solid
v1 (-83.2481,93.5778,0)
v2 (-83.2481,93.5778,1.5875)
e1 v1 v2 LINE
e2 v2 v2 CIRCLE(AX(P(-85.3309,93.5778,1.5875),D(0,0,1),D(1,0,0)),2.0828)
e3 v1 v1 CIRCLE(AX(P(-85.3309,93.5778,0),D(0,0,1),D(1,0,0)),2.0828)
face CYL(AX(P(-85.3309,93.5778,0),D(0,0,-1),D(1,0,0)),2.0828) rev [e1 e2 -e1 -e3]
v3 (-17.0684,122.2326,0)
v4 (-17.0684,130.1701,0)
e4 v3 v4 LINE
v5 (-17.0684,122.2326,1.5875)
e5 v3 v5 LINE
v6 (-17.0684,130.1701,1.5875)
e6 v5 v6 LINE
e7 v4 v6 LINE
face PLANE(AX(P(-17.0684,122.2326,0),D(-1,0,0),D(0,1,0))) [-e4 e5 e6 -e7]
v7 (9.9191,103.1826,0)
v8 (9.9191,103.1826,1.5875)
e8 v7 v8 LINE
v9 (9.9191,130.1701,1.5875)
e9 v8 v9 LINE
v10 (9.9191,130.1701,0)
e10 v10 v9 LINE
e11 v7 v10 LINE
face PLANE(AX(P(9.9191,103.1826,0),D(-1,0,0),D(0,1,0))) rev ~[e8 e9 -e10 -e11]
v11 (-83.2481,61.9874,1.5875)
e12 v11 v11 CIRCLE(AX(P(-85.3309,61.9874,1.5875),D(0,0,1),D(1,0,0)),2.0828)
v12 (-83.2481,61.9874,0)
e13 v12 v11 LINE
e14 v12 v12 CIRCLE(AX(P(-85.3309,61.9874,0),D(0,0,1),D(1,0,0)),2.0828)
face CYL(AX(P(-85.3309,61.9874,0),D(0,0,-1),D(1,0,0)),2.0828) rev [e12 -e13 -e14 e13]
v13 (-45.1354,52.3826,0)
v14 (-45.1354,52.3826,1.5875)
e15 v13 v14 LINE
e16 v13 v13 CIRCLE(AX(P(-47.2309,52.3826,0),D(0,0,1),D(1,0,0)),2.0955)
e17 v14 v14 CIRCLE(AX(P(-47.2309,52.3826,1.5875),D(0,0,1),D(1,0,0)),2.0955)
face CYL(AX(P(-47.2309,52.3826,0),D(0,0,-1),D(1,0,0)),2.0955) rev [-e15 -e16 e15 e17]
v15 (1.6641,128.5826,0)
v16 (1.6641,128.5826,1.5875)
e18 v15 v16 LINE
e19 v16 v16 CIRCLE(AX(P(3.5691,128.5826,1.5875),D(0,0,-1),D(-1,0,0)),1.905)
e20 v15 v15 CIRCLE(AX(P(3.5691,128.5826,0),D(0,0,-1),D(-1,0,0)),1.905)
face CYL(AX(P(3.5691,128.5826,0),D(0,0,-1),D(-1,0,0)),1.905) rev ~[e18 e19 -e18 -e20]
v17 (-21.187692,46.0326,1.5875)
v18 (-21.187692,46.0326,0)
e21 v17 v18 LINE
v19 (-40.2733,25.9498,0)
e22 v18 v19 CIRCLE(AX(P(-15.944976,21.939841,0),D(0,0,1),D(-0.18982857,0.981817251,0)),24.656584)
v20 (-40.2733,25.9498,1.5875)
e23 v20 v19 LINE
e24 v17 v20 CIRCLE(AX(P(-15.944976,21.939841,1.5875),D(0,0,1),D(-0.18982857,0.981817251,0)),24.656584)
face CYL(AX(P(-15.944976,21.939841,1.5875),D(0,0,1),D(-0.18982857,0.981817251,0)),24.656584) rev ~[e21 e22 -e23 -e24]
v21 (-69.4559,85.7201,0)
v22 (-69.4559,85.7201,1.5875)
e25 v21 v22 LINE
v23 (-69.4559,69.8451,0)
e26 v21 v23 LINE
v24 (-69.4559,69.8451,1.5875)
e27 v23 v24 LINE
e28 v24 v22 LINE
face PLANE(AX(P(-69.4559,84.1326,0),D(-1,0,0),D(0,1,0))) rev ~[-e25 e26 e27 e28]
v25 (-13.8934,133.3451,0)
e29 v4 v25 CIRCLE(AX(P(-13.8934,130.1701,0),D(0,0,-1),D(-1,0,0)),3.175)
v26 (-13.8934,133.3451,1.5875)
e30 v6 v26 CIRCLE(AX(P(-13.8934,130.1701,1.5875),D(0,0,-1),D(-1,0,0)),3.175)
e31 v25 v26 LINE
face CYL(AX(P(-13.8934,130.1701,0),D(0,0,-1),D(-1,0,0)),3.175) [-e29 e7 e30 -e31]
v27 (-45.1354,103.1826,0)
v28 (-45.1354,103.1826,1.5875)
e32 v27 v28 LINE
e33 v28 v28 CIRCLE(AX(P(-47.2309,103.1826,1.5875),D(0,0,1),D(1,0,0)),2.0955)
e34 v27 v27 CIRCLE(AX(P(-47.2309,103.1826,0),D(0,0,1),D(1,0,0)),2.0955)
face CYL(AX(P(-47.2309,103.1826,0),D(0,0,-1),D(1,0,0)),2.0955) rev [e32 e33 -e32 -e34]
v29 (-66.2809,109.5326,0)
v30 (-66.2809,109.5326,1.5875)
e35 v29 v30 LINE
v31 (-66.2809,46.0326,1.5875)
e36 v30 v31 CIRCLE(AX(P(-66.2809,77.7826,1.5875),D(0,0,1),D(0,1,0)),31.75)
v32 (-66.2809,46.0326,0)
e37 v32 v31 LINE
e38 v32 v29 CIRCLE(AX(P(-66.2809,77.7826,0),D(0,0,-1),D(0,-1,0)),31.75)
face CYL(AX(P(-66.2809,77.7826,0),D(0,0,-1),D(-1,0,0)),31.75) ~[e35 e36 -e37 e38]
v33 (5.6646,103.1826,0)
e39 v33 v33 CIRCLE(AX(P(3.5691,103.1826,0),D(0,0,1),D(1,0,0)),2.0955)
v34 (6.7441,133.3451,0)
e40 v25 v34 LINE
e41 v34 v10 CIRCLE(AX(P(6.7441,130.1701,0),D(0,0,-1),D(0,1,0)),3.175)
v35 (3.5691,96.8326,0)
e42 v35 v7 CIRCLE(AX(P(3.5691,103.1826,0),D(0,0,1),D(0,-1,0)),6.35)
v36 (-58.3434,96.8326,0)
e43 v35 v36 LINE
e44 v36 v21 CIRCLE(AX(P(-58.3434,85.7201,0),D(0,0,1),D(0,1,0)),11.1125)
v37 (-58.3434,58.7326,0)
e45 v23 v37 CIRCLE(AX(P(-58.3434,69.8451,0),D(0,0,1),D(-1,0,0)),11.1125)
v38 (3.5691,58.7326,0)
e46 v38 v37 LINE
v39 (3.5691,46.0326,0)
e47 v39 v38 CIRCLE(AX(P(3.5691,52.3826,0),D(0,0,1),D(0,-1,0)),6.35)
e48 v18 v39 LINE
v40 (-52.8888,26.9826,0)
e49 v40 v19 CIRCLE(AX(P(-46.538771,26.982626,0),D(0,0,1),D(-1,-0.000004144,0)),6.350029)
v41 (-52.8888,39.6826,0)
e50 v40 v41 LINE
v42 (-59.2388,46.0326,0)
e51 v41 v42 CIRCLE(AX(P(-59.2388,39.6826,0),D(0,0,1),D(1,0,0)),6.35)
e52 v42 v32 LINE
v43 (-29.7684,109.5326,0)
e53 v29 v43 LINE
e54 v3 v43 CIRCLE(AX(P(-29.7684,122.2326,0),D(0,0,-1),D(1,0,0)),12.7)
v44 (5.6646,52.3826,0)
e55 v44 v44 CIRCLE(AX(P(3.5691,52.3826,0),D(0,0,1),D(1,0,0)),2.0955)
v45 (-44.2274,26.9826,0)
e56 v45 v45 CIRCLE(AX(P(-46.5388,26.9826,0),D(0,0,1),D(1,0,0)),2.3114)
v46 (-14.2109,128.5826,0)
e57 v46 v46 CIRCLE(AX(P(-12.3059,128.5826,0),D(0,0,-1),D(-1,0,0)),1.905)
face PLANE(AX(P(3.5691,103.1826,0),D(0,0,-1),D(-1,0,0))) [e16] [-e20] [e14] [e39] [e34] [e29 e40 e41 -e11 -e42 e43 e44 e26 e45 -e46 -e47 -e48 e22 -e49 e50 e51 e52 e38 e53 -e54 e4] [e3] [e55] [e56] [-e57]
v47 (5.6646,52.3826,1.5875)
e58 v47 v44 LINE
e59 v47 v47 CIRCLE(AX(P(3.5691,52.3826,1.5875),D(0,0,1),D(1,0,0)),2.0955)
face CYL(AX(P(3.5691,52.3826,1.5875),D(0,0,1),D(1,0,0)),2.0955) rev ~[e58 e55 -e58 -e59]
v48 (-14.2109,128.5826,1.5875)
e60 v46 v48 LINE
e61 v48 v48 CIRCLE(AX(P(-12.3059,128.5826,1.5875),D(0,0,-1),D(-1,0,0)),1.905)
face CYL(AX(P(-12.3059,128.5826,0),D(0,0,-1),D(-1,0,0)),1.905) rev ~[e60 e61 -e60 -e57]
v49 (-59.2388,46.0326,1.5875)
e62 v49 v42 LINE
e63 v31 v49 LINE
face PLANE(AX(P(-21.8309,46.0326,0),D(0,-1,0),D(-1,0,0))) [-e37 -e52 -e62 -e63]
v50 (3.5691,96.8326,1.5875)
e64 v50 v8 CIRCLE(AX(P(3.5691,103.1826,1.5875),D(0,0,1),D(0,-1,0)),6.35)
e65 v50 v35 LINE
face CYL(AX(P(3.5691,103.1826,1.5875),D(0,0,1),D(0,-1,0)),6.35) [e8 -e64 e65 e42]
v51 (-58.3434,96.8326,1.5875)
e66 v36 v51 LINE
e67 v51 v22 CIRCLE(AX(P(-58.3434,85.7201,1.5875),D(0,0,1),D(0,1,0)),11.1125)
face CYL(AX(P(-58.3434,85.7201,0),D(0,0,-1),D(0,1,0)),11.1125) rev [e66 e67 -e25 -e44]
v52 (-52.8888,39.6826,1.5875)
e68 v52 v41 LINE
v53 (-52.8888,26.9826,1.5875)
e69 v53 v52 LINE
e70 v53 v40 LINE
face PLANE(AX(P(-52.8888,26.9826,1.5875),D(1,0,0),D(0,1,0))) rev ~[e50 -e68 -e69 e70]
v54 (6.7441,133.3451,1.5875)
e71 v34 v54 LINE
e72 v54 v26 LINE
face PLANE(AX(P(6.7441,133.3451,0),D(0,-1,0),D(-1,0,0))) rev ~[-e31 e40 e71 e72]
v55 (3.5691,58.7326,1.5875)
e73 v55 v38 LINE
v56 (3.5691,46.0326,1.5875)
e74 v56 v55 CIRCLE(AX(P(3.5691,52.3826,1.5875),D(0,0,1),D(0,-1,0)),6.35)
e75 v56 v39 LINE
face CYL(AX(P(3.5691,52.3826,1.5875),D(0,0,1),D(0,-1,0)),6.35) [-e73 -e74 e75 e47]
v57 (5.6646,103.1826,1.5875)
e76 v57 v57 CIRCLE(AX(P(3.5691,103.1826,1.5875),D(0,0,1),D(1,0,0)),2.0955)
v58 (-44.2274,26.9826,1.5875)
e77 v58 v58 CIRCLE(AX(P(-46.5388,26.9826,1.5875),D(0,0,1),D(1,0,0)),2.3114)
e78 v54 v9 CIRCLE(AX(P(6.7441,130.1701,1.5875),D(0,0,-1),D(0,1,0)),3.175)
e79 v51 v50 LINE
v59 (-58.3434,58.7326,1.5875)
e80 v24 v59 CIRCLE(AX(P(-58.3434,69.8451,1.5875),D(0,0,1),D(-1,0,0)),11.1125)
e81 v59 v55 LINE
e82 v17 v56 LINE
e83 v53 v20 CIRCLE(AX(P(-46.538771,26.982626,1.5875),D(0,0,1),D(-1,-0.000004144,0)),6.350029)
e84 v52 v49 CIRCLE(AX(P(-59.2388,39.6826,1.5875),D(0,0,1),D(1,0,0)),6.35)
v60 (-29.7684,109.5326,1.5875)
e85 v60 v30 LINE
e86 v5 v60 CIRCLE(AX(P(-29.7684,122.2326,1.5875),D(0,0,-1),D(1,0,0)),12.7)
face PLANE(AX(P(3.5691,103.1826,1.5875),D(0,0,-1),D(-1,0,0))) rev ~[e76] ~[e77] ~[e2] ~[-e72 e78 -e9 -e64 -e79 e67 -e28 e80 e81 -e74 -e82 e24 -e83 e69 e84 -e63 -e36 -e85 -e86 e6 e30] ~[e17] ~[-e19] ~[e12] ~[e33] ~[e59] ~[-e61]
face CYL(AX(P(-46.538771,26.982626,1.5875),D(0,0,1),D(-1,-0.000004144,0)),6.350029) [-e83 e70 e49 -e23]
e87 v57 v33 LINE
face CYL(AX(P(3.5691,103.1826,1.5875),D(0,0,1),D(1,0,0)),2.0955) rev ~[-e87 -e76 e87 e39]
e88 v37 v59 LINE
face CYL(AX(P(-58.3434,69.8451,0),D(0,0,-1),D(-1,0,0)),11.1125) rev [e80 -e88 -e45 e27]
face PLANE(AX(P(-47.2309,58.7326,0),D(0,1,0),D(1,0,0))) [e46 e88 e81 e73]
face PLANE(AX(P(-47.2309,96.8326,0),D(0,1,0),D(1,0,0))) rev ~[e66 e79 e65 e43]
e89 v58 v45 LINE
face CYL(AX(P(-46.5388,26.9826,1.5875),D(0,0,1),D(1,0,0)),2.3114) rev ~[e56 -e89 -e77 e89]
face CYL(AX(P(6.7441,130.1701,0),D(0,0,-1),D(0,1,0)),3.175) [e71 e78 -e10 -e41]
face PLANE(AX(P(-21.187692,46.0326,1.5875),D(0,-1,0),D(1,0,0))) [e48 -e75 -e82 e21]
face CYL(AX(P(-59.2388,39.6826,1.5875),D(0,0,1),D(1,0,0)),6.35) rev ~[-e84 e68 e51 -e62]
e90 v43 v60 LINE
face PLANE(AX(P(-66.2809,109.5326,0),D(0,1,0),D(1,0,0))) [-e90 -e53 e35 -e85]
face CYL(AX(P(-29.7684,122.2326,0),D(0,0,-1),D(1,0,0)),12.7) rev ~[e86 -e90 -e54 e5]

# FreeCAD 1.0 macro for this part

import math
import FreeCAD as App
import Part
import Sketcher
from FreeCAD import Vector
Q = App.Units.Quantity

doc = App.newDocument("Part")
params = doc.addObject("Spreadsheet::Sheet", "Params")
for row, (alias, value) in enumerate([
    ("sketch1_radius", "0.25 in"),
    ("sketch1_radius2", "1.25 in"),
    ("sketch1_diameter", "0.164 in"),
    ("sketch1_diameter2", "0.165 in"),
    ("sketch1_radius3", "0.4375 in"),
    ("pad1_length", "0.0625 in"),
    ("sketch2_radius", "0.25 in"),
    ("sketch2_diameter", "0.182 in"),
    ("sketch2_diameter2", "0.165 in"),
    ("sketch2_height", "0.5 in"),
    ("sketch2_width", "1 in"),
    ("pad2_length", "0.0625 in"),
    ("sketch3_radius", "0.5 in"),
    ("sketch3_diameter", "0.15 in"),
    ("sketch3_radius2", "0.25 in"),
    ("sketch3_radius3", "0.125 in"),
    ("sketch3_width", "1.3125 in"),
    ("pad3_length", "0.0625 in"),
], start=1):
    params.set(f"A{row}", alias)
    params.set(f"B{row}", "=" + value)
    params.setAlias(f"B{row}", alias)

body = doc.addObject("PartDesign::Body", "Body")

sketch1 = body.newObject("Sketcher::SketchObject", "Sketch")
sketch1.AttachmentSupport = (doc.getObject("XY_Plane"), [""])
sketch1.MapMode = "FlatFace"
sketch1.addGeometry([
    Part.LineSegment(Vector(-21.8, 58.7, 0), Vector(-58.3, 58.7, 0)),
    Part.ArcOfCircle(Part.Circle(Vector(-58.3, 69.8, 0), Vector(0, 0, 1), 11.1), math.radians(180), math.radians(270)),
    Part.LineSegment(Vector(-69.5, 69.8, 0), Vector(-69.5, 85.7, 0)),
    Part.ArcOfCircle(Part.Circle(Vector(-58.3, 85.7, 0), Vector(0, 0, 1), 11.1), math.radians(90), math.radians(180)),
    Part.LineSegment(Vector(-58.3, 96.8, 0), Vector(-21.8, 96.8, 0)),
    Part.ArcOfCircle(Part.Circle(Vector(-21.8, 103.2, 0), Vector(0, 0, 1), 6.3), math.radians(-90), math.radians(90)),
    Part.LineSegment(Vector(-21.8, 109.5, 0), Vector(-66.3, 109.5, 0)),
    Part.ArcOfCircle(Part.Circle(Vector(-66.3, 77.8, 0), Vector(0, 0, 1), 31.8), math.radians(90), math.radians(270)),
    Part.LineSegment(Vector(-66.3, 46, 0), Vector(-21.8, 46, 0)),
    Part.ArcOfCircle(Part.Circle(Vector(-21.8, 52.4, 0), Vector(0, 0, 1), 6.3), math.radians(-90), math.radians(90)),
    Part.Circle(Vector(-85.3, 62, 0), Vector(0, 0, 1), 2.1),
    Part.Circle(Vector(-47.2, 52.4, 0), Vector(0, 0, 1), 2.1),
    Part.Circle(Vector(-85.3, 93.6, 0), Vector(0, 0, 1), 2.1),
    Part.Circle(Vector(-47.2, 103.2, 0), Vector(0, 0, 1), 2.1),
], False)
sketch1.addConstraint([
    Sketcher.Constraint("Tangent", 0, 2, 1, 2),
    Sketcher.Constraint("Tangent", 1, 1, 2, 1),
    Sketcher.Constraint("Tangent", 2, 2, 3, 2),
    Sketcher.Constraint("Tangent", 3, 1, 4, 1),
    Sketcher.Constraint("Tangent", 4, 2, 5, 1),
    Sketcher.Constraint("Tangent", 5, 2, 6, 1),
    Sketcher.Constraint("Tangent", 6, 2, 7, 1),
    Sketcher.Constraint("Tangent", 7, 2, 8, 1),
    Sketcher.Constraint("Tangent", 8, 2, 9, 1),
    Sketcher.Constraint("Tangent", 9, 2, 0, 1),
    Sketcher.Constraint("Horizontal", 0),
    Sketcher.Constraint("Vertical", 2),
    Sketcher.Constraint("Horizontal", 4),
    Sketcher.Constraint("Horizontal", 6),
    Sketcher.Constraint("Horizontal", 8),
    Sketcher.Constraint("Equal", 1, 3),
    Sketcher.Constraint("Equal", 5, 9),
    Sketcher.Constraint("Equal", 10, 12),
    Sketcher.Constraint("Equal", 11, 13),
    Sketcher.Constraint("Horizontal", 9, 3, 11, 3),
    Sketcher.Constraint("Horizontal", 5, 3, 13, 3),
    Sketcher.Constraint("Vertical", 5, 3, 9, 3),
    Sketcher.Constraint("Vertical", 10, 3, 12, 3),
    Sketcher.Constraint("Vertical", 11, 3, 13, 3),
    Sketcher.Constraint("Radius", 5, Q("0.25 in")),
    Sketcher.Constraint("Radius", 7, Q("1.25 in")),
    Sketcher.Constraint("Diameter", 10, Q("0.164 in")),
    Sketcher.Constraint("Diameter", 11, Q("0.165 in")),
    Sketcher.Constraint("Radius", 1, Q("0.4375 in")),
    Sketcher.Constraint("DistanceX", 1, 3, 11, 3, Q("0.4375 in")),
    Sketcher.Constraint("DistanceX", 11, 3, 9, 3, Q("1 in")),
    Sketcher.Constraint("DistanceX", 6, 2, 6, 1, Q("1.75 in")),
    Sketcher.Constraint("DistanceX", 10, 3, 9, 3, Q("2.5 in")),
    Sketcher.Constraint("DistanceY", -1, 1, 1, 3, Q("2.7498 in")),
    Sketcher.Constraint("DistanceX", 1, 3, -1, 1, 58.3434),
    Sketcher.Constraint("DistanceY", -1, 1, 10, 3, 61.9874),
    Sketcher.Constraint("DistanceY", -1, 1, 12, 3, 93.5778),
])
sketch1.setExpression("Constraints[24]", "Params.sketch1_radius")
sketch1.setExpression("Constraints[25]", "Params.sketch1_radius2")
sketch1.setExpression("Constraints[26]", "Params.sketch1_diameter")
sketch1.setExpression("Constraints[27]", "Params.sketch1_diameter2")
sketch1.setExpression("Constraints[28]", "Params.sketch1_radius3")
pad1 = body.newObject("PartDesign::Pad", "Pad")
pad1.Profile = sketch1
pad1.setExpression("Length", "Params.pad1_length")

sketch2 = body.newObject("Sketcher::SketchObject", "Sketch001")
sketch2.AttachmentSupport = (doc.getObject("XY_Plane"), [""])
sketch2.MapMode = "FlatFace"
sketch2.AttachmentOffset = App.Placement(Vector(0, 0, 0.0625 * 25.4), App.Rotation())
sketch2.addGeometry([
    Part.LineSegment(Vector(-52.9, 39.7, 0), Vector(-52.9, 27, 0)),
    Part.ArcOfCircle(Part.Circle(Vector(-46.5, 27, 0), Vector(0, 0, 1), 6.4), math.radians(180), math.radians(351)),
    Part.ArcOfCircle(Part.Circle(Vector(-15.9, 21.9, 0), Vector(0, 0, 1), 24.7), math.radians(102), math.radians(171)),
    Part.LineSegment(Vector(-21.2, 46, 0), Vector(3.6, 46, 0)),
    Part.ArcOfCircle(Part.Circle(Vector(3.6, 52.4, 0), Vector(0, 0, 1), 6.3), math.radians(-90), math.radians(90)),
    Part.LineSegment(Vector(3.6, 58.7, 0), Vector(-21.8, 58.7, 0)),
    Part.ArcOfCircle(Part.Circle(Vector(-21.8, 52.4, 0), Vector(0, 0, 1), 6.3), math.radians(-90), math.radians(90)),
    Part.LineSegment(Vector(-21.8, 46, 0), Vector(-59.2, 46, 0)),
    Part.ArcOfCircle(Part.Circle(Vector(-59.2, 39.7, 0), Vector(0, 0, 1), 6.3), math.radians(0), math.radians(90)),
    Part.Circle(Vector(-46.5, 27, 0), Vector(0, 0, 1), 2.3),
    Part.Circle(Vector(3.6, 52.4, 0), Vector(0, 0, 1), 2.1),
    Part.ArcOfCircle(Part.Circle(Vector(-21.8, 103.2, 0), Vector(0, 0, 1), 6.4), math.radians(-90), math.radians(90)),
    Part.LineSegment(Vector(-21.8, 96.8, 0), Vector(3.6, 96.8, 0)),
    Part.ArcOfCircle(Part.Circle(Vector(3.6, 103.2, 0), Vector(0, 0, 1), 6.4), math.radians(-90), math.radians(90)),
    Part.LineSegment(Vector(3.6, 109.5, 0), Vector(-21.8, 109.5, 0)),
    Part.Circle(Vector(3.6, 103.2, 0), Vector(0, 0, 1), 2.1),
], False)
sketch2.addConstraint([
    Sketcher.Constraint("Tangent", 0, 2, 1, 1),
    Sketcher.Constraint("Tangent", 1, 2, 2, 2),
    Sketcher.Constraint("Coincident", 2, 1, 3, 1),
    Sketcher.Constraint("Tangent", 3, 2, 4, 1),
    Sketcher.Constraint("Tangent", 4, 2, 5, 1),
    Sketcher.Constraint("Tangent", 5, 2, 6, 2),
    Sketcher.Constraint("Tangent", 6, 1, 7, 1),
    Sketcher.Constraint("Tangent", 7, 2, 8, 2),
    Sketcher.Constraint("Tangent", 8, 1, 0, 1),
    Sketcher.Constraint("Tangent", 11, 1, 12, 1),
    Sketcher.Constraint("Tangent", 12, 2, 13, 1),
    Sketcher.Constraint("Tangent", 13, 2, 14, 1),
    Sketcher.Constraint("Tangent", 14, 2, 11, 2),
    Sketcher.Constraint("Vertical", 0),
    Sketcher.Constraint("Horizontal", 3),
    Sketcher.Constraint("Horizontal", 5),
    Sketcher.Constraint("Horizontal", 7),
    Sketcher.Constraint("Horizontal", 12),
    Sketcher.Constraint("Horizontal", 14),
    Sketcher.Constraint("Coincident", 9, 3, 1, 3),
    Sketcher.Constraint("Coincident", 10, 3, 4, 3),
    Sketcher.Constraint("Coincident", 15, 3, 13, 3),
    Sketcher.Constraint("Equal", 1, 4),
    Sketcher.Constraint("Equal", 4, 6),
    Sketcher.Constraint("Equal", 6, 8),
    Sketcher.Constraint("Equal", 8, 11),
    Sketcher.Constraint("Equal", 10, 15),
    Sketcher.Constraint("Vertical", 6, 3, 11, 3),
    Sketcher.Constraint("Vertical", 10, 3, 13, 3),
    Sketcher.Constraint("Radius", 1, Q("0.25 in")),
    Sketcher.Constraint("Diameter", 9, Q("0.182 in")),
    Sketcher.Constraint("Diameter", 10, Q("0.165 in")),
    Sketcher.Constraint("DistanceY", 0, 2, 0, 1, Q("0.5 in")),
    Sketcher.Constraint("DistanceX", 5, 2, 5, 1, Q("1 in")),
    Sketcher.Constraint("DistanceY", 6, 3, 11, 3, Q("2 in")),
    Sketcher.Constraint("Radius", 2, 24.6567),
    Sketcher.Constraint("DistanceX", 3, 1, 3, 2, 24.7568),
    Sketcher.Constraint("DistanceX", 7, 2, 7, 1, 37.408),
    Sketcher.Constraint("DistanceY", -1, 1, 1, 3, Q("1.0623 in")),
    Sketcher.Constraint("DistanceX", 1, 3, -1, 1, 46.5388),
])
sketch2.setExpression("Constraints[29]", "Params.sketch2_radius")
sketch2.setExpression("Constraints[30]", "Params.sketch2_diameter")
sketch2.setExpression("Constraints[31]", "Params.sketch2_diameter2")
sketch2.setExpression("Constraints[32]", "Params.sketch2_height")
sketch2.setExpression("Constraints[33]", "Params.sketch2_width")
pad2 = body.newObject("PartDesign::Pad", "Pad001")
pad2.Profile = sketch2
pad2.setExpression("Length", "Params.pad2_length")
pad2.Reversed = True

sketch3 = body.newObject("Sketcher::SketchObject", "Sketch002")
sketch3.AttachmentSupport = (doc.getObject("XY_Plane"), [""])
sketch3.MapMode = "FlatFace"
sketch3.addGeometry([
    Part.ArcOfCircle(Part.Circle(Vector(3.6, 103.2, 0), Vector(0, 0, 1), 6.3), math.radians(0), math.radians(90)),
    Part.LineSegment(Vector(3.6, 109.5, 0), Vector(-29.8, 109.5, 0)),
    Part.ArcOfCircle(Part.Circle(Vector(-29.8, 122.2, 0), Vector(0, 0, 1), 12.7), math.radians(-90), math.radians(0)),
    Part.LineSegment(Vector(-17.1, 122.2, 0), Vector(-17.1, 130.2, 0)),
    Part.ArcOfCircle(Part.Circle(Vector(-13.9, 130.2, 0), Vector(0, 0, 1), 3.2), math.radians(90), math.radians(180)),
    Part.LineSegment(Vector(-13.9, 133.3, 0), Vector(6.7, 133.3, 0)),
    Part.ArcOfCircle(Part.Circle(Vector(6.7, 130.2, 0), Vector(0, 0, 1), 3.2), math.radians(0), math.radians(90)),
    Part.LineSegment(Vector(9.9, 130.2, 0), Vector(9.9, 103.2, 0)),
    Part.Circle(Vector(3.6, 128.6, 0), Vector(0, 0, 1), 1.9),
    Part.Circle(Vector(-12.3, 128.6, 0), Vector(0, 0, 1), 1.9),
], False)
sketch3.addConstraint([
    Sketcher.Constraint("Tangent", 0, 2, 1, 1),
    Sketcher.Constraint("Tangent", 1, 2, 2, 1),
    Sketcher.Constraint("Tangent", 2, 2, 3, 1),
    Sketcher.Constraint("Tangent", 3, 2, 4, 2),
    Sketcher.Constraint("Tangent", 4, 1, 5, 1),
    Sketcher.Constraint("Tangent", 5, 2, 6, 2),
    Sketcher.Constraint("Tangent", 6, 1, 7, 1),
    Sketcher.Constraint("Tangent", 7, 2, 0, 1),
    Sketcher.Constraint("Horizontal", 1),
    Sketcher.Constraint("Vertical", 3),
    Sketcher.Constraint("Horizontal", 5),
    Sketcher.Constraint("Vertical", 7),
    Sketcher.Constraint("Equal", 4, 6),
    Sketcher.Constraint("Equal", 8, 9),
    Sketcher.Constraint("Horizontal", 8, 3, 9, 3),
    Sketcher.Constraint("Vertical", 0, 3, 8, 3),
    Sketcher.Constraint("Radius", 2, Q("0.5 in")),
    Sketcher.Constraint("Diameter", 8, Q("0.15 in")),
    Sketcher.Constraint("Radius", 0, Q("0.25 in")),
    Sketcher.Constraint("Radius", 4, Q("0.125 in")),
    Sketcher.Constraint("DistanceY", 0, 3, 8, 3, Q("1 in")),
    Sketcher.Constraint("DistanceX", 1, 2, 1, 1, Q("1.3125 in")),
    Sketcher.Constraint("DistanceY", 3, 1, 3, 2, Q("0.3125 in")),
    Sketcher.Constraint("DistanceX", 9, 3, 6, 3, Q("0.75 in")),
    Sketcher.Constraint("DistanceY", -1, 1, 0, 3, Q("4.0623 in")),
    Sketcher.Constraint("DistanceX", -1, 1, 0, 3, Q("0.1405118 in")),
])
sketch3.setExpression("Constraints[16]", "Params.sketch3_radius")
sketch3.setExpression("Constraints[17]", "Params.sketch3_diameter")
sketch3.setExpression("Constraints[18]", "Params.sketch3_radius2")
sketch3.setExpression("Constraints[19]", "Params.sketch3_radius3")
sketch3.setExpression("Constraints[21]", "Params.sketch3_width")
pad3 = body.newObject("PartDesign::Pad", "Pad002")
pad3.Profile = sketch3
pad3.setExpression("Length", "Params.pad3_length")

doc.recompute()
